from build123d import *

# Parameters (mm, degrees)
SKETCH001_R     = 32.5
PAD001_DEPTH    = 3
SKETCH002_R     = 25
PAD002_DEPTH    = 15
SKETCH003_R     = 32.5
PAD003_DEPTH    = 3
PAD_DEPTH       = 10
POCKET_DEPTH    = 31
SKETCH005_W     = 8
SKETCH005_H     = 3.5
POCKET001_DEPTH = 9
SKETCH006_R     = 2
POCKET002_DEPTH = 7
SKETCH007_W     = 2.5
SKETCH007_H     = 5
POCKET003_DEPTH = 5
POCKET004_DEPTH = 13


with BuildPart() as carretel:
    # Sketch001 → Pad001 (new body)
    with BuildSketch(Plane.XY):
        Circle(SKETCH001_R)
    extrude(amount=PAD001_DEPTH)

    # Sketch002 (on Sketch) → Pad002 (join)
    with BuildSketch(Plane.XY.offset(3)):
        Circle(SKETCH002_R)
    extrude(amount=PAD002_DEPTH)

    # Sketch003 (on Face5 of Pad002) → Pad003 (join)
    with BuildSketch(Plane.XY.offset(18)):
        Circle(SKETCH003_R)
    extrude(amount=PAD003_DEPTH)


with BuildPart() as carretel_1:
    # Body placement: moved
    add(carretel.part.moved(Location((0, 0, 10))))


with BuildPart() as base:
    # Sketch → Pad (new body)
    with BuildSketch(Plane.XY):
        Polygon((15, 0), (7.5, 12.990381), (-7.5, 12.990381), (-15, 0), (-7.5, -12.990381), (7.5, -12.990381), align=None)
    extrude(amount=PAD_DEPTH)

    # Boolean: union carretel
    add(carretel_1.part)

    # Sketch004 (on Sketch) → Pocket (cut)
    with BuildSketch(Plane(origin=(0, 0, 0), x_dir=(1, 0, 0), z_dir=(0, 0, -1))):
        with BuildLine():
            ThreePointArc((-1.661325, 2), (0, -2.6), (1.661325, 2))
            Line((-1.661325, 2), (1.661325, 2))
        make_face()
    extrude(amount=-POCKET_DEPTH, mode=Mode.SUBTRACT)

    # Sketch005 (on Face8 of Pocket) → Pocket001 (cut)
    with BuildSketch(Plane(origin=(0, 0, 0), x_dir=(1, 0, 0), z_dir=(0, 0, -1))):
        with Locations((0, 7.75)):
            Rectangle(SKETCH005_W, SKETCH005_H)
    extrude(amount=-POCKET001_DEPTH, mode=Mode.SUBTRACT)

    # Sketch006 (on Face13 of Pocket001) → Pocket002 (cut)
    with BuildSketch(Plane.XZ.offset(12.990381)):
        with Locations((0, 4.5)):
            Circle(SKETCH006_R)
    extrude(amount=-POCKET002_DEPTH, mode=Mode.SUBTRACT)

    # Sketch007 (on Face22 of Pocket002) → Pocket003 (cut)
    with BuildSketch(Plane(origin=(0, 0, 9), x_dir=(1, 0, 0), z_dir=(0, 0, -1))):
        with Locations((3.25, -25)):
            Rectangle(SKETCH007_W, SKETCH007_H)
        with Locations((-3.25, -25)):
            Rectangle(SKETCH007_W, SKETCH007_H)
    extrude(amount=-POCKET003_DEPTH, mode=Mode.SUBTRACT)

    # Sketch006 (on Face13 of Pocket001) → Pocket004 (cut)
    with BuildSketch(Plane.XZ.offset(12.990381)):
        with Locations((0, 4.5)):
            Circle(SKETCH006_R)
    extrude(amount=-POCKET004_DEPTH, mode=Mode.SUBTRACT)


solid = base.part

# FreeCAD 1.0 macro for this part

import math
import FreeCAD as App
import Part
import Sketcher

V = App.Vector
Q = App.Units.Quantity


def add_polygon(sketch, points):
    """Adds a closed chain of lines whose ends are joined by coincident constraints."""
    first, n = sketch.GeometryCount, len(points)
    for a, b in zip(points, points[1:] + points[:1]):
        sketch.addGeometry(Part.LineSegment(App.Vector(*a, 0), App.Vector(*b, 0)), False)
    for i in range(n):
        sketch.addConstraint(Sketcher.Constraint("Coincident", first + i, 2, first + (i + 1) % n, 1))

doc = App.newDocument("Part")
body = doc.addObject("PartDesign::Body", "Body")

# Sketch on XY plane
sketch1 = doc.addObject("Sketcher::SketchObject", "Sketch")
body.addObject(sketch1)
sketch1.AttachmentSupport = (doc.XY_Plane, [""])
sketch1.MapMode = "FlatFace"
sketch1.addGeometry(Part.Circle(V(0, 0, 0), V(0, 0, 1), 32.5), False)
sketch1.addConstraint(Sketcher.Constraint("Coincident", 0, 3, -1, 1))
sketch1.addConstraint(Sketcher.Constraint("Diameter", 0, Q("65 mm")))
pad1 = doc.addObject("PartDesign::Pad", "Pad")
body.addObject(pad1)
pad1.Profile = sketch1
pad1.Length = 3

# Sketch on XY plane
sketch2 = doc.addObject("Sketcher::SketchObject", "Sketch001")
body.addObject(sketch2)
sketch2.AttachmentSupport = (doc.XY_Plane, [""])
sketch2.MapMode = "FlatFace"
sketch2.AttachmentOffset = App.Placement(V(0, 0, 3), App.Rotation())
sketch2.addGeometry(Part.Circle(V(0, 0, 0), V(0, 0, 1), 25), False)
sketch2.addConstraint(Sketcher.Constraint("Coincident", 0, 3, -1, 1))
sketch2.addConstraint(Sketcher.Constraint("Diameter", 0, Q("50 mm")))
pad2 = doc.addObject("PartDesign::Pad", "Pad001")
body.addObject(pad2)
pad2.Profile = sketch2
pad2.Length = 15

# Sketch on XY plane
sketch3 = doc.addObject("Sketcher::SketchObject", "Sketch002")
body.addObject(sketch3)
sketch3.AttachmentSupport = (doc.XY_Plane, [""])
sketch3.MapMode = "FlatFace"
sketch3.AttachmentOffset = App.Placement(V(0, 0, 18), App.Rotation())
sketch3.addGeometry(Part.Circle(V(0, 0, 0), V(0, 0, 1), 32.5), False)
sketch3.addConstraint(Sketcher.Constraint("Coincident", 0, 3, -1, 1))
sketch3.addConstraint(Sketcher.Constraint("Diameter", 0, Q("65 mm")))
pad3 = doc.addObject("PartDesign::Pad", "Pad002")
body.addObject(pad3)
pad3.Profile = sketch3
pad3.Length = 3
body2 = doc.addObject("PartDesign::Body", "Body001")
doc.recompute()

body.Placement = App.Placement(V(0, 0, 10), App.Rotation(V(0, 0, 1), 0))
boolean = doc.addObject("PartDesign::Boolean", "Boolean")
body2.addObject(boolean)
boolean.Type = "Fuse"
boolean.addObjects([body])
body3 = doc.addObject("PartDesign::Body", "Body002")

# Sketch on XY plane
sketch4 = doc.addObject("Sketcher::SketchObject", "Sketch003")
body3.addObject(sketch4)
sketch4.AttachmentSupport = (doc.getObject("XY_Plane002"), [""])
sketch4.MapMode = "FlatFace"
add_polygon(sketch4, [(15, 0), (7.5, 12.990381), (-7.5, 12.990381), (-15, 0), (-7.5, -12.990381), (7.5, -12.990381)])  # lines 0-5
sketch4.addConstraint(Sketcher.Constraint("Horizontal", 1))
sketch4.addConstraint(Sketcher.Constraint("Horizontal", 4))
sketch4.addConstraint(Sketcher.Constraint("Symmetric", 0, 2, 3, 2, -1, 1))
sketch4.addConstraint(Sketcher.Constraint("Symmetric", 2, 2, 5, 2, -1, 1))
sketch4.addConstraint(Sketcher.Constraint("PointOnObject", 2, 2, -1))
sketch4.addConstraint(Sketcher.Constraint("Parallel", 2, 5))
sketch4.addConstraint(Sketcher.Constraint("Vertical", 1, 2, 3, 2))
sketch4.addConstraint(Sketcher.Constraint("DistanceX", 1, 2, 1, 1, Q("15 mm")))
sketch4.addConstraint(Sketcher.Constraint("Angle", 0, Q("120 deg")))
sketch4.addConstraint(Sketcher.Constraint("Distance", 0, Q("15 mm")))
pad4 = doc.addObject("PartDesign::Pad", "Pad003")
body3.addObject(pad4)
pad4.Profile = sketch4
pad4.Length = 10
doc.recompute()

boolean2 = doc.addObject("PartDesign::Boolean", "Boolean001")
body3.addObject(boolean2)
boolean2.Type = "Fuse"
boolean2.addObjects([body2])

# Sketch on XY plane
sketch5 = doc.addObject("Sketcher::SketchObject", "Sketch004")
body3.addObject(sketch5)
sketch5.AttachmentSupport = (doc.getObject("XY_Plane002"), [""])
sketch5.MapMode = "FlatFace"
sketch5.addGeometry(Part.ArcOfCircle(Part.Circle(V(0, 0, 0), V(0, 0, 1), 2.6), math.radians(-50.284858), math.radians(230.284858)), False)
sketch5.addGeometry(Part.LineSegment(V(1.661325, -2, 0), V(-1.661325, -2, 0)), False)
sketch5.addConstraint(Sketcher.Constraint("Coincident", 0, 1, 1, 1))
sketch5.addConstraint(Sketcher.Constraint("Coincident", 1, 2, 0, 2))
sketch5.addConstraint(Sketcher.Constraint("Horizontal", 1))
sketch5.addConstraint(Sketcher.Constraint("Coincident", 0, 3, -1, 1))
sketch5.addConstraint(Sketcher.Constraint("Radius", 0, Q("2.6 mm")))
sketch5.addConstraint(Sketcher.Constraint("DistanceY", 0, 1, -1, 1, Q("2 mm")))
pocket1 = doc.addObject("PartDesign::Pocket", "Pocket")
body3.addObject(pocket1)
pocket1.Profile = sketch5
pocket1.Length = 31
pocket1.Reversed = True

# Sketch on XY plane
sketch6 = doc.addObject("Sketcher::SketchObject", "Sketch005")
body3.addObject(sketch6)
sketch6.AttachmentSupport = (doc.getObject("XY_Plane002"), [""])
sketch6.MapMode = "FlatFace"
add_polygon(sketch6, [(-4, -9.5), (-4, -6), (4, -6), (4, -9.5)])  # lines 0-3
sketch6.addConstraint(Sketcher.Constraint("Vertical", 0))
sketch6.addConstraint(Sketcher.Constraint("Horizontal", 1))
sketch6.addConstraint(Sketcher.Constraint("Vertical", 2))
sketch6.addConstraint(Sketcher.Constraint("Horizontal", 3))
sketch6.addConstraint(Sketcher.Constraint("DistanceX", 1, 1, 1, 2, Q("8 mm")))
sketch6.addConstraint(Sketcher.Constraint("DistanceY", 0, 1, 0, 2, Q("3.5 mm")))
sketch6.addConstraint(Sketcher.Constraint("DistanceX", 0, 2, -1, 1, Q("4 mm")))
sketch6.addConstraint(Sketcher.Constraint("DistanceY", 0, 2, -1, 1, Q("6 mm")))
pocket2 = doc.addObject("PartDesign::Pocket", "Pocket001")
body3.addObject(pocket2)
pocket2.Profile = sketch6
pocket2.Length = 9
pocket2.Reversed = True

# Sketch on XZ plane
sketch7 = doc.addObject("Sketcher::SketchObject", "Sketch006")
body3.addObject(sketch7)
sketch7.AttachmentSupport = (doc.getObject("XZ_Plane002"), [""])
sketch7.MapMode = "FlatFace"
sketch7.AttachmentOffset = App.Placement(V(0, 0, 12.990381), App.Rotation())
sketch7.addGeometry(Part.Circle(V(0, 4.5, 0), V(0, 0, 1), 2), False)
sketch7.addConstraint(Sketcher.Constraint("PointOnObject", 0, 3, -2))
sketch7.addConstraint(Sketcher.Constraint("Diameter", 0, Q("4 mm")))
sketch7.addConstraint(Sketcher.Constraint("DistanceY", -1, 1, 0, 3, Q("4.5 mm")))
pocket3 = doc.addObject("PartDesign::Pocket", "Pocket002")
body3.addObject(pocket3)
pocket3.Profile = sketch7
pocket3.Length = 7

# Sketch on XY plane
sketch8 = doc.addObject("Sketcher::SketchObject", "Sketch007")
body3.addObject(sketch8)
sketch8.AttachmentSupport = (doc.getObject("XY_Plane002"), [""])
sketch8.MapMode = "FlatFace"
sketch8.AttachmentOffset = App.Placement(V(0, 0, 9), App.Rotation())
add_polygon(sketch8, [(2, 22.5), (2, 27.5), (4.5, 27.5), (4.5, 22.5)])  # lines 0-3
add_polygon(sketch8, [(-4.5, 22.5), (-4.5, 27.5), (-2, 27.5), (-2, 22.5)])  # lines 4-7
sketch8.addConstraint(Sketcher.Constraint("Vertical", 0))
sketch8.addConstraint(Sketcher.Constraint("Horizontal", 1))
sketch8.addConstraint(Sketcher.Constraint("Vertical", 2))
sketch8.addConstraint(Sketcher.Constraint("Horizontal", 3))
sketch8.addConstraint(Sketcher.Constraint("Vertical", 4))
sketch8.addConstraint(Sketcher.Constraint("Horizontal", 5))
sketch8.addConstraint(Sketcher.Constraint("Vertical", 6))
sketch8.addConstraint(Sketcher.Constraint("Horizontal", 7))
sketch8.addConstraint(Sketcher.Constraint("Symmetric", 1, 2, 4, 2, -2))
sketch8.addConstraint(Sketcher.Constraint("Symmetric", 3, 2, 6, 2, -2))
sketch8.addConstraint(Sketcher.Constraint("DistanceY", 0, 1, 0, 2, Q("5 mm")))
sketch8.addConstraint(Sketcher.Constraint("DistanceX", 1, 1, 1, 2, Q("2.5 mm")))
sketch8.addConstraint(Sketcher.Constraint("DistanceX", -1, 1, 0, 2, Q("2 mm")))
sketch8.addConstraint(Sketcher.Constraint("DistanceY", -1, 1, 0, 2, Q("27.5 mm")))
pocket4 = doc.addObject("PartDesign::Pocket", "Pocket003")
body3.addObject(pocket4)
pocket4.Profile = sketch8
pocket4.Length = 5
pocket4.Reversed = True

# Sketch on XZ plane
sketch9 = doc.addObject("Sketcher::SketchObject", "Sketch008")
body3.addObject(sketch9)
sketch9.AttachmentSupport = (doc.getObject("XZ_Plane002"), [""])
sketch9.MapMode = "FlatFace"
sketch9.AttachmentOffset = App.Placement(V(0, 0, 12.990381), App.Rotation())
sketch9.addGeometry(Part.Circle(V(0, 4.5, 0), V(0, 0, 1), 2), False)
sketch9.addConstraint(Sketcher.Constraint("PointOnObject", 0, 3, -2))
sketch9.addConstraint(Sketcher.Constraint("Diameter", 0, Q("4 mm")))
sketch9.addConstraint(Sketcher.Constraint("DistanceY", -1, 1, 0, 3, Q("4.5 mm")))
pocket5 = doc.addObject("PartDesign::Pocket", "Pocket004")
body3.addObject(pocket5)
pocket5.Profile = sketch9
pocket5.Length = 13

doc.recompute()
